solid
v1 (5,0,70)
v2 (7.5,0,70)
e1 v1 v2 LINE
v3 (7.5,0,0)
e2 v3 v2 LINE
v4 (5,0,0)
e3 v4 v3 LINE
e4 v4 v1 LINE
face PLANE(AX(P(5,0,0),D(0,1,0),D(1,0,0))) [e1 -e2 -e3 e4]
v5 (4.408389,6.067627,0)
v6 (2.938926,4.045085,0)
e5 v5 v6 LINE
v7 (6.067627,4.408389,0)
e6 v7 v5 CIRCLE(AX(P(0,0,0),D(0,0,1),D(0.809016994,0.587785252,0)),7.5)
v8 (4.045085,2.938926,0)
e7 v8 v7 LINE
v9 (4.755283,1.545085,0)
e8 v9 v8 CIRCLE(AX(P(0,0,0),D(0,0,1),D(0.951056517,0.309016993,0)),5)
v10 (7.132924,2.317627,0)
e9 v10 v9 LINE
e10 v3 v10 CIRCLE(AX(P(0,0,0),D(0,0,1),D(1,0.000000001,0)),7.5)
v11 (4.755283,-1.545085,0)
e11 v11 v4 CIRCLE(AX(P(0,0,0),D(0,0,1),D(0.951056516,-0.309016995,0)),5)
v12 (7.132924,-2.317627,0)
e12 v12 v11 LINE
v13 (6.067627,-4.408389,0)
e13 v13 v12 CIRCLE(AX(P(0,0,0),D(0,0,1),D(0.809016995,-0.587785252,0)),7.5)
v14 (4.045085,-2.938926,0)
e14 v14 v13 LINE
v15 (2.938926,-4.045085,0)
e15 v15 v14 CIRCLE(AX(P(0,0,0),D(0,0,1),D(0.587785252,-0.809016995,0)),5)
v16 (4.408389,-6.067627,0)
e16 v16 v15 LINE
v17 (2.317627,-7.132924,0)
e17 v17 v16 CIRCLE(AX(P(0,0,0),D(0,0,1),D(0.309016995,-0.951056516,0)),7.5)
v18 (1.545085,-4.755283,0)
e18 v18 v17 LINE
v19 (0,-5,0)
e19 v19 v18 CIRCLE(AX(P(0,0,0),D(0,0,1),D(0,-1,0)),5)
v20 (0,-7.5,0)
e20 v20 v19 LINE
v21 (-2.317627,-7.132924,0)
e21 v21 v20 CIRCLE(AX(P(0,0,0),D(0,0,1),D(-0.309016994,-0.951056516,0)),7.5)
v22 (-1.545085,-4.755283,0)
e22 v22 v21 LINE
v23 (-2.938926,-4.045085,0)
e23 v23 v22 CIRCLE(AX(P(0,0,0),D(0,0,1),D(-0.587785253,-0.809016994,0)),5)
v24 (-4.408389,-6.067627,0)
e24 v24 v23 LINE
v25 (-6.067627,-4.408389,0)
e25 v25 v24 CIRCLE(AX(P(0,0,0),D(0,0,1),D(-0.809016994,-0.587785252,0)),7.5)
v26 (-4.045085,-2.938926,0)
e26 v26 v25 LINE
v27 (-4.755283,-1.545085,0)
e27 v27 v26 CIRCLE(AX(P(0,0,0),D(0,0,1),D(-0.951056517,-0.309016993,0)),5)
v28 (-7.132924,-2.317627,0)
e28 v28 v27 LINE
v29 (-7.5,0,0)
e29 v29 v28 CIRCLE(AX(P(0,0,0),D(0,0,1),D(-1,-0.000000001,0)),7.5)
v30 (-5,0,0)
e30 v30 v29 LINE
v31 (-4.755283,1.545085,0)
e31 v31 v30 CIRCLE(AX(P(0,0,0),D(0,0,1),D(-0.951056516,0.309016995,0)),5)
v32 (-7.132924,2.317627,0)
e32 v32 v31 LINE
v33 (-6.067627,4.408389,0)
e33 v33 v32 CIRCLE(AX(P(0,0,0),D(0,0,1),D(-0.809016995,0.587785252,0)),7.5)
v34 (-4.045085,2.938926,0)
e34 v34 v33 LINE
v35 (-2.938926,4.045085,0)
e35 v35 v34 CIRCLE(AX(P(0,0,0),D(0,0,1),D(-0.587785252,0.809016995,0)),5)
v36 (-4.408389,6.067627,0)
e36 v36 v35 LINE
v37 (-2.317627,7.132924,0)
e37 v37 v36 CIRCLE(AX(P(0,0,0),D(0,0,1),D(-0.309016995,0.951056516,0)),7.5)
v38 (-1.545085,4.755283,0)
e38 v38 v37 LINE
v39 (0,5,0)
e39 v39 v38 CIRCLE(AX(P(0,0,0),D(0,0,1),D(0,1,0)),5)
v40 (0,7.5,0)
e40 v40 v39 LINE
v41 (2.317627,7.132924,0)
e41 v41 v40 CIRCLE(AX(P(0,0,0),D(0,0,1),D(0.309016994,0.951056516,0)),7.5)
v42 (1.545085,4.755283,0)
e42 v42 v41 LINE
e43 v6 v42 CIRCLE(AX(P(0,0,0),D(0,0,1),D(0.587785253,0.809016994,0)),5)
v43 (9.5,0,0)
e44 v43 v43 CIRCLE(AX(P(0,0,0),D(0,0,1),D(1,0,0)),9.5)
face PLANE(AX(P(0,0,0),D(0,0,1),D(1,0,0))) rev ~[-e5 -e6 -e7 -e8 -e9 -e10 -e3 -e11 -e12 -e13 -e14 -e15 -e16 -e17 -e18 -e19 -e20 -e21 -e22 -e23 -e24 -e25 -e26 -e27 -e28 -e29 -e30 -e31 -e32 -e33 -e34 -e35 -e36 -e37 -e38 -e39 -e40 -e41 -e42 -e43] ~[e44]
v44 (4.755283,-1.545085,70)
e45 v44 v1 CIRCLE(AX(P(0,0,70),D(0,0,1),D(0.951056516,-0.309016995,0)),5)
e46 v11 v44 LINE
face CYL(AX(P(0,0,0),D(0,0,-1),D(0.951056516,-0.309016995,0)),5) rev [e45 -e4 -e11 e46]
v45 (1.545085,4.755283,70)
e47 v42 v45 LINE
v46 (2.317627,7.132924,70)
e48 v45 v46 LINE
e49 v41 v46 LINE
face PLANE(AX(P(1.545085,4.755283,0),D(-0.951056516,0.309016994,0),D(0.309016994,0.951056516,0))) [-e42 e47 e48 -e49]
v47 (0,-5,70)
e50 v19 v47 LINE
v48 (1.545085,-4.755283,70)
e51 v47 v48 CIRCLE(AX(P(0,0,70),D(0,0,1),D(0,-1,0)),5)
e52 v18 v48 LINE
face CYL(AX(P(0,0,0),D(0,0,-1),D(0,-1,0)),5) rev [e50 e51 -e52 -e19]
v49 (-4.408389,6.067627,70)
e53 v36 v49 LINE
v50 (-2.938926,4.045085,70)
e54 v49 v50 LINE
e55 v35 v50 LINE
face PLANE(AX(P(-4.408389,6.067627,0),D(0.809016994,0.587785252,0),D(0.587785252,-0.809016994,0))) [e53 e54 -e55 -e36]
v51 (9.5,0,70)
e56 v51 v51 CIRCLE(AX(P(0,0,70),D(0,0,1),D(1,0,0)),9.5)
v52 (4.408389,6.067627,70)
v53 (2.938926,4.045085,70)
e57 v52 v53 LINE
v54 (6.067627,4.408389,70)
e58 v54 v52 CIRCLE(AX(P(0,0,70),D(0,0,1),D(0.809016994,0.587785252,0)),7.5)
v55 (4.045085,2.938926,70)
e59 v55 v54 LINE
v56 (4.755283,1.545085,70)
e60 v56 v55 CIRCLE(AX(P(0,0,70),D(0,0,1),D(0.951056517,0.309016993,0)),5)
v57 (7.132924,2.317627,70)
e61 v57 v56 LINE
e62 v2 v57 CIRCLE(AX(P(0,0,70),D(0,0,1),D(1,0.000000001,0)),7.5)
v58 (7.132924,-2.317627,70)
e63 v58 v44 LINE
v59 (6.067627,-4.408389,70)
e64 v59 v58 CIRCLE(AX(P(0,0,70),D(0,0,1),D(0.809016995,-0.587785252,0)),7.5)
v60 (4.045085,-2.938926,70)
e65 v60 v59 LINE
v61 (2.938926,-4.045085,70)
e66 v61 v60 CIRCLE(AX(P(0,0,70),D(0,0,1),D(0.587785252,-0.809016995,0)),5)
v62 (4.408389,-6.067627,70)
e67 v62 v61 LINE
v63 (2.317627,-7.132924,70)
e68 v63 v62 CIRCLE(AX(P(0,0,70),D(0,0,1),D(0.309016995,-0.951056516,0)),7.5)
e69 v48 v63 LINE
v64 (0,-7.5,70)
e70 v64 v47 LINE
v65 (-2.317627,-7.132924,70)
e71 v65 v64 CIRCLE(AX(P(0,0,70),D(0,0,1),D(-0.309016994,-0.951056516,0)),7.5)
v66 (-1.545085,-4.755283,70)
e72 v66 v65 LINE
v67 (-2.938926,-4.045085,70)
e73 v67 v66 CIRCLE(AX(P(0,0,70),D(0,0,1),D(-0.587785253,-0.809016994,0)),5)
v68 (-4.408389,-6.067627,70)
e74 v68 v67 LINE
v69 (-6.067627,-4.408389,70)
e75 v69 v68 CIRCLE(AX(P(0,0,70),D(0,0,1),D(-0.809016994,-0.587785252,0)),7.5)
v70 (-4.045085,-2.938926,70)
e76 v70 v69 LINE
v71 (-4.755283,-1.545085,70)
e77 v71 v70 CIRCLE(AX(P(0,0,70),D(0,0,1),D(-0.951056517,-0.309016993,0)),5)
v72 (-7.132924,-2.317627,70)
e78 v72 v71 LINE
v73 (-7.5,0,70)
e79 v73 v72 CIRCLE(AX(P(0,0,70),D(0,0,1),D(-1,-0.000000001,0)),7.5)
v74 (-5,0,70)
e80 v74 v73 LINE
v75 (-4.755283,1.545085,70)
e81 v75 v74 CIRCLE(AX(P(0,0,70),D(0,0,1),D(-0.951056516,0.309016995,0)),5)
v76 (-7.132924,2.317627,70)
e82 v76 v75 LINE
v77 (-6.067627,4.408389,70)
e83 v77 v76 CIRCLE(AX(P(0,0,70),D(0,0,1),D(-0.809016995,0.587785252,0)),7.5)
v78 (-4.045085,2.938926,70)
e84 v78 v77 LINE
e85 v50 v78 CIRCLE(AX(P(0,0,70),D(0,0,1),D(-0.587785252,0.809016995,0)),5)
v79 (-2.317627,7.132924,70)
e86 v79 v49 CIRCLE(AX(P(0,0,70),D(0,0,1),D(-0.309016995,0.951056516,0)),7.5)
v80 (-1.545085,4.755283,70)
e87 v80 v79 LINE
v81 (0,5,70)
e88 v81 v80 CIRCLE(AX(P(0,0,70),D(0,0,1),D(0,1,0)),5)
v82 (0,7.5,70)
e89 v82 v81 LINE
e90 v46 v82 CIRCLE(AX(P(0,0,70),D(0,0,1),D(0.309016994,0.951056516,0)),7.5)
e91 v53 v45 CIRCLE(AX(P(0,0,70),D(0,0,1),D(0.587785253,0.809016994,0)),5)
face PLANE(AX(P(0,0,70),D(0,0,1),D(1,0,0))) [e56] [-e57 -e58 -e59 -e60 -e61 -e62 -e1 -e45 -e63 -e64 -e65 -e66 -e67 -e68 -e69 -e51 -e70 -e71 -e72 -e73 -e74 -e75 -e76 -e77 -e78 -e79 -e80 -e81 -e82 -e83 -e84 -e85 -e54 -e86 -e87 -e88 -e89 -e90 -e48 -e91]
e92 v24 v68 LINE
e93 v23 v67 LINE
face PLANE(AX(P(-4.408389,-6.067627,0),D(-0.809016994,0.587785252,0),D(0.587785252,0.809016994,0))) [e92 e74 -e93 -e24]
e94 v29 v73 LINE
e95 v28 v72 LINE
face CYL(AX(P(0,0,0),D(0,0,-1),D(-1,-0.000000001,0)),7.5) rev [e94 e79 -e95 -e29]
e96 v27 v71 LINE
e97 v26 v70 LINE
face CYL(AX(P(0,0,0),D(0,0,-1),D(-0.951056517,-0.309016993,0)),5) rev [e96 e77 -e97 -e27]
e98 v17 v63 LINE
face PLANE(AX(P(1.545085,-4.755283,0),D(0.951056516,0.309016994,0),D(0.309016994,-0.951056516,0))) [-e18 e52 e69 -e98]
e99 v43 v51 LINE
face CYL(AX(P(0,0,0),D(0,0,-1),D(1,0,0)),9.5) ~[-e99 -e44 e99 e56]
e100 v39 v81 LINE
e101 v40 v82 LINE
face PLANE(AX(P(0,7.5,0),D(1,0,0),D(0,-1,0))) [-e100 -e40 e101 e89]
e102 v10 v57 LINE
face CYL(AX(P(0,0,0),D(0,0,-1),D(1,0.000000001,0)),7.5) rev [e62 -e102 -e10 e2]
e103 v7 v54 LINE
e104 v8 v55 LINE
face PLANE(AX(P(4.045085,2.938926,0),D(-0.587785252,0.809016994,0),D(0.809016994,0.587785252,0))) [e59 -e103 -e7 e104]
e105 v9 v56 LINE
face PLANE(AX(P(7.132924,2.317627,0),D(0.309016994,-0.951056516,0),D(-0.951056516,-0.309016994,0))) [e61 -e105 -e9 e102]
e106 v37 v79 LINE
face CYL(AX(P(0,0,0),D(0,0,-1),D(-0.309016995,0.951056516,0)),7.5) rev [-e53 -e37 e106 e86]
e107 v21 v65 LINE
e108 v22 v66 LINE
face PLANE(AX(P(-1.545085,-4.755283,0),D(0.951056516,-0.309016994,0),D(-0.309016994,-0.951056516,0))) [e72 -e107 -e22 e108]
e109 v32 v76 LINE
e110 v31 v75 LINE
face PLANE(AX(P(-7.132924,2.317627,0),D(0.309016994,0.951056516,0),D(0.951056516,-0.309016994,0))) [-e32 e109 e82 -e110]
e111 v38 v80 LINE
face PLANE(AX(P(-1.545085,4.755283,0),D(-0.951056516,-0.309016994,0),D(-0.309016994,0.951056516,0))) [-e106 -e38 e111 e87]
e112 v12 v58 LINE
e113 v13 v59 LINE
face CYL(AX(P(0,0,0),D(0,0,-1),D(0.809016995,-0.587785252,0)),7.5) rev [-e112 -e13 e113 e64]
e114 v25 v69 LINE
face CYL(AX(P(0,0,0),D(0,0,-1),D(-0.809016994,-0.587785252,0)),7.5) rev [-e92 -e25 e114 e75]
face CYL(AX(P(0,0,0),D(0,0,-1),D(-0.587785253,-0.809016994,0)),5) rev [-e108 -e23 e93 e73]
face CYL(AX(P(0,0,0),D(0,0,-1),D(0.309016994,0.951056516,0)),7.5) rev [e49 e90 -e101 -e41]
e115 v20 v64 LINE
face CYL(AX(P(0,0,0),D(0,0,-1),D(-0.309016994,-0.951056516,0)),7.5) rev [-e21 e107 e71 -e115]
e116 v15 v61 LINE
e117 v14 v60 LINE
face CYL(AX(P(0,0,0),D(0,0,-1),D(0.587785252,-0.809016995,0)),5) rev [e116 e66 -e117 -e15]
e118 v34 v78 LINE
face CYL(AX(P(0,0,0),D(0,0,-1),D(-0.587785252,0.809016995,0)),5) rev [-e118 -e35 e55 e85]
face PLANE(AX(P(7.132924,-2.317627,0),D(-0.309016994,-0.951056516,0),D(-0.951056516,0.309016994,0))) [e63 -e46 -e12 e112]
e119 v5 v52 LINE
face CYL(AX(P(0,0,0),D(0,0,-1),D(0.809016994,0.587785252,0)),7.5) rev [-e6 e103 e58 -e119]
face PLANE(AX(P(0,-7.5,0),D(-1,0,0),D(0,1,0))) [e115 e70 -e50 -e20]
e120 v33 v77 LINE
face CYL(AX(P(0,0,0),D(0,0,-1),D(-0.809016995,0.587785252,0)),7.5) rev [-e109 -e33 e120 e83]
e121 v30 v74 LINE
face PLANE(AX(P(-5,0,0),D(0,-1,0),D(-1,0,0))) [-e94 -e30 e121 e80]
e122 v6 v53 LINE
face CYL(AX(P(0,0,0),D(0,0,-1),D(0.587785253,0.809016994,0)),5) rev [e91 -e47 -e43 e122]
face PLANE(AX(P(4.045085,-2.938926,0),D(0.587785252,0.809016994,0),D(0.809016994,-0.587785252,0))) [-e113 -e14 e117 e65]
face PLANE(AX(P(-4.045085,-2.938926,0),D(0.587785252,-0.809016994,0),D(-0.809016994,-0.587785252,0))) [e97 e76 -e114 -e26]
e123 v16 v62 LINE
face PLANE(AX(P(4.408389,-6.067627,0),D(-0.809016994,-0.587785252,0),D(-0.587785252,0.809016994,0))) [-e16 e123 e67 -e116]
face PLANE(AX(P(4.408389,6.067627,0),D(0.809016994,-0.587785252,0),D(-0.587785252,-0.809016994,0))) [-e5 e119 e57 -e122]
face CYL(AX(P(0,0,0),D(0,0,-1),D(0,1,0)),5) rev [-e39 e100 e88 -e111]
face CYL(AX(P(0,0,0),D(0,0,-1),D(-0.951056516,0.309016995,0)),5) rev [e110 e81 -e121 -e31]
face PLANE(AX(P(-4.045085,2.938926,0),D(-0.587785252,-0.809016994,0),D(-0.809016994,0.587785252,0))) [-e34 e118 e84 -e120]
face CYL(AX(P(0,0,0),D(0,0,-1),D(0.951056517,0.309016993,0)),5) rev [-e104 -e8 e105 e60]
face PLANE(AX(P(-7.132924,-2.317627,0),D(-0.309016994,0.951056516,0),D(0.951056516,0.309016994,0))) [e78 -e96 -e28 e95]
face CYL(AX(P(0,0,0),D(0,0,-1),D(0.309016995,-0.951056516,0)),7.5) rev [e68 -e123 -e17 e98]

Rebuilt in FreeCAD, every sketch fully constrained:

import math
import FreeCAD as App
import Part
import Sketcher
from FreeCAD import Vector
Q = App.Units.Quantity

doc = App.newDocument("Part")
body = doc.addObject("PartDesign::Body", "Body")

# Sketch on XY plane
sketch1 = body.newObject("Sketcher::SketchObject", "Sketch")
sketch1.AttachmentSupport = (doc.getObject("XY_Plane"), [""])
sketch1.MapMode = "FlatFace"
sketch1.addGeometry([
    Part.Circle(Vector(0, 0, 0), Vector(0, 0, 1), 9.5),  # 0
    Part.LineSegment(Vector(0, 5, 0), Vector(0, 7.5, 0)),  # 1
    Part.ArcOfCircle(Part.Circle(Vector(0, 0, 0), Vector(0, 0, 1), 7.5), math.radians(72), math.radians(90)),  # 2
    Part.LineSegment(Vector(2.317627, 7.132924, 0), Vector(1.545085, 4.755283, 0)),  # 3
    Part.ArcOfCircle(Part.Circle(Vector(0, 0, 0), Vector(0, 0, 1), 5), math.radians(54), math.radians(72)),  # 4
    Part.LineSegment(Vector(2.938926, 4.045085, 0), Vector(4.408389, 6.067627, 0)),  # 5
    Part.ArcOfCircle(Part.Circle(Vector(0, 0, 0), Vector(0, 0, 1), 7.5), math.radians(36), math.radians(54)),  # 6
    Part.LineSegment(Vector(6.067627, 4.408389, 0), Vector(4.045085, 2.938926, 0)),  # 7
    Part.ArcOfCircle(Part.Circle(Vector(0, 0, 0), Vector(0, 0, 1), 5), math.radians(18), math.radians(36)),  # 8
    Part.LineSegment(Vector(4.755283, 1.545085, 0), Vector(7.132924, 2.317627, 0)),  # 9
    Part.ArcOfCircle(Part.Circle(Vector(0, 0, 0), Vector(0, 0, 1), 7.5), math.radians(0), math.radians(18)),  # 10
    Part.LineSegment(Vector(7.5, 0, 0), Vector(5, 0, 0)),  # 11
    Part.ArcOfCircle(Part.Circle(Vector(0, 0, 0), Vector(0, 0, 1), 5), math.radians(-18), math.radians(0)),  # 12
    Part.LineSegment(Vector(4.755283, -1.545085, 0), Vector(7.132924, -2.317627, 0)),  # 13
    Part.ArcOfCircle(Part.Circle(Vector(0, 0, 0), Vector(0, 0, 1), 7.5), math.radians(-36), math.radians(-18)),  # 14
    Part.LineSegment(Vector(6.067627, -4.408389, 0), Vector(4.045085, -2.938926, 0)),  # 15
    Part.ArcOfCircle(Part.Circle(Vector(0, 0, 0), Vector(0, 0, 1), 5), math.radians(-54), math.radians(-36)),  # 16
    Part.LineSegment(Vector(2.938926, -4.045085, 0), Vector(4.408389, -6.067627, 0)),  # 17
    Part.ArcOfCircle(Part.Circle(Vector(0, 0, 0), Vector(0, 0, 1), 7.5), math.radians(-72), math.radians(-54)),  # 18
    Part.LineSegment(Vector(2.317627, -7.132924, 0), Vector(1.545085, -4.755283, 0)),  # 19
    Part.ArcOfCircle(Part.Circle(Vector(0, 0, 0), Vector(0, 0, 1), 5), math.radians(-90), math.radians(-72)),  # 20
    Part.LineSegment(Vector(0, -5, 0), Vector(0, -7.5, 0)),  # 21
    Part.ArcOfCircle(Part.Circle(Vector(0, 0, 0), Vector(0, 0, 1), 7.5), math.radians(-108), math.radians(-90)),  # 22
    Part.LineSegment(Vector(-2.317627, -7.132924, 0), Vector(-1.545085, -4.755283, 0)),  # 23
    Part.ArcOfCircle(Part.Circle(Vector(0, 0, 0), Vector(0, 0, 1), 5), math.radians(-126), math.radians(-108)),  # 24
    Part.LineSegment(Vector(-2.938926, -4.045085, 0), Vector(-4.408389, -6.067627, 0)),  # 25
    Part.ArcOfCircle(Part.Circle(Vector(0, 0, 0), Vector(0, 0, 1), 7.5), math.radians(-144), math.radians(-126)),  # 26
    Part.LineSegment(Vector(-6.067627, -4.408389, 0), Vector(-4.045085, -2.938926, 0)),  # 27
    Part.ArcOfCircle(Part.Circle(Vector(0, 0, 0), Vector(0, 0, 1), 5), math.radians(-162), math.radians(-144)),  # 28
    Part.LineSegment(Vector(-4.755283, -1.545085, 0), Vector(-7.132924, -2.317627, 0)),  # 29
    Part.ArcOfCircle(Part.Circle(Vector(0, 0, 0), Vector(0, 0, 1), 7.5), math.radians(-180), math.radians(-162)),  # 30
    Part.LineSegment(Vector(-7.5, 0, 0), Vector(-5, 0, 0)),  # 31
    Part.ArcOfCircle(Part.Circle(Vector(0, 0, 0), Vector(0, 0, 1), 5), math.radians(162), math.radians(180)),  # 32
    Part.LineSegment(Vector(-4.755283, 1.545085, 0), Vector(-7.132924, 2.317627, 0)),  # 33
    Part.ArcOfCircle(Part.Circle(Vector(0, 0, 0), Vector(0, 0, 1), 7.5), math.radians(144), math.radians(162)),  # 34
    Part.LineSegment(Vector(-6.067627, 4.408389, 0), Vector(-4.045085, 2.938926, 0)),  # 35
    Part.ArcOfCircle(Part.Circle(Vector(0, 0, 0), Vector(0, 0, 1), 5), math.radians(126), math.radians(144)),  # 36
    Part.LineSegment(Vector(-2.938926, 4.045085, 0), Vector(-4.408389, 6.067627, 0)),  # 37
    Part.ArcOfCircle(Part.Circle(Vector(0, 0, 0), Vector(0, 0, 1), 7.5), math.radians(108), math.radians(126)),  # 38
    Part.LineSegment(Vector(-2.317627, 7.132924, 0), Vector(-1.545085, 4.755283, 0)),  # 39
    Part.ArcOfCircle(Part.Circle(Vector(0, 0, 0), Vector(0, 0, 1), 5), math.radians(90), math.radians(108)),  # 40
], False)
sketch1.addConstraint([
    Sketcher.Constraint("Coincident", 1, 2, 2, 2),
    Sketcher.Constraint("Coincident", 2, 1, 3, 1),
    Sketcher.Constraint("Coincident", 3, 2, 4, 2),
    Sketcher.Constraint("Coincident", 4, 1, 5, 1),
    Sketcher.Constraint("Coincident", 5, 2, 6, 2),
    Sketcher.Constraint("Coincident", 6, 1, 7, 1),
    Sketcher.Constraint("Coincident", 7, 2, 8, 2),
    Sketcher.Constraint("Coincident", 8, 1, 9, 1),
    Sketcher.Constraint("Coincident", 9, 2, 10, 2),
    Sketcher.Constraint("Coincident", 10, 1, 11, 1),
    Sketcher.Constraint("Coincident", 11, 2, 12, 2),
    Sketcher.Constraint("Coincident", 12, 1, 13, 1),
    Sketcher.Constraint("Coincident", 13, 2, 14, 2),
    Sketcher.Constraint("Coincident", 14, 1, 15, 1),
    Sketcher.Constraint("Coincident", 15, 2, 16, 2),
    Sketcher.Constraint("Coincident", 16, 1, 17, 1),
    Sketcher.Constraint("Coincident", 17, 2, 18, 2),
    Sketcher.Constraint("Coincident", 18, 1, 19, 1),
    Sketcher.Constraint("Coincident", 19, 2, 20, 2),
    Sketcher.Constraint("Coincident", 20, 1, 21, 1),
    Sketcher.Constraint("Coincident", 21, 2, 22, 2),
    Sketcher.Constraint("Coincident", 22, 1, 23, 1),
    Sketcher.Constraint("Coincident", 23, 2, 24, 2),
    Sketcher.Constraint("Coincident", 24, 1, 25, 1),
    Sketcher.Constraint("Coincident", 25, 2, 26, 2),
    Sketcher.Constraint("Coincident", 26, 1, 27, 1),
    Sketcher.Constraint("Coincident", 27, 2, 28, 2),
    Sketcher.Constraint("Coincident", 28, 1, 29, 1),
    Sketcher.Constraint("Coincident", 29, 2, 30, 2),
    Sketcher.Constraint("Coincident", 30, 1, 31, 1),
    Sketcher.Constraint("Coincident", 31, 2, 32, 2),
    Sketcher.Constraint("Coincident", 32, 1, 33, 1),
    Sketcher.Constraint("Coincident", 33, 2, 34, 2),
    Sketcher.Constraint("Coincident", 34, 1, 35, 1),
    Sketcher.Constraint("Coincident", 35, 2, 36, 2),
    Sketcher.Constraint("Coincident", 36, 1, 37, 1),
    Sketcher.Constraint("Coincident", 37, 2, 38, 2),
    Sketcher.Constraint("Coincident", 38, 1, 39, 1),
    Sketcher.Constraint("Coincident", 39, 2, 40, 2),
    Sketcher.Constraint("Coincident", 40, 1, 1, 1),
    Sketcher.Constraint("Vertical", 1),
    Sketcher.Constraint("Horizontal", 11),
    Sketcher.Constraint("Vertical", 21),
    Sketcher.Constraint("Horizontal", 31),
    Sketcher.Constraint("Coincident", 0, 3, -1, 1),
    Sketcher.Constraint("Coincident", 2, 3, -1, 1),
    Sketcher.Constraint("Coincident", 4, 3, -1, 1),
    Sketcher.Constraint("Coincident", 6, 3, -1, 1),
    Sketcher.Constraint("Coincident", 8, 3, -1, 1),
    Sketcher.Constraint("Coincident", 10, 3, -1, 1),
    Sketcher.Constraint("Coincident", 12, 3, -1, 1),
    Sketcher.Constraint("Coincident", 14, 3, -1, 1),
    Sketcher.Constraint("Coincident", 16, 3, -1, 1),
    Sketcher.Constraint("Coincident", 18, 3, -1, 1),
    Sketcher.Constraint("Coincident", 20, 3, -1, 1),
    Sketcher.Constraint("Coincident", 22, 3, -1, 1),
    Sketcher.Constraint("Coincident", 24, 3, -1, 1),
    Sketcher.Constraint("Coincident", 26, 3, -1, 1),
    Sketcher.Constraint("Coincident", 28, 3, -1, 1),
    Sketcher.Constraint("Coincident", 30, 3, -1, 1),
    Sketcher.Constraint("Coincident", 32, 3, -1, 1),
    Sketcher.Constraint("Coincident", 34, 3, -1, 1),
    Sketcher.Constraint("Coincident", 36, 3, -1, 1),
    Sketcher.Constraint("Coincident", 38, 3, -1, 1),
    Sketcher.Constraint("Coincident", 40, 3, -1, 1),
    Sketcher.Constraint("Equal", 2, 6),
    Sketcher.Constraint("Equal", 4, 8),
    Sketcher.Constraint("Equal", 6, 10),
    Sketcher.Constraint("Equal", 8, 12),
    Sketcher.Constraint("Equal", 10, 14),
    Sketcher.Constraint("Equal", 12, 16),
    Sketcher.Constraint("Equal", 14, 18),
    Sketcher.Constraint("Equal", 16, 20),
    Sketcher.Constraint("Equal", 18, 22),
    Sketcher.Constraint("Equal", 20, 24),
    Sketcher.Constraint("Equal", 22, 26),
    Sketcher.Constraint("Equal", 24, 28),
    Sketcher.Constraint("Equal", 26, 30),
    Sketcher.Constraint("Equal", 28, 32),
    Sketcher.Constraint("Equal", 30, 34),
    Sketcher.Constraint("Equal", 32, 36),
    Sketcher.Constraint("Equal", 34, 38),
    Sketcher.Constraint("Equal", 36, 40),
    Sketcher.Constraint("PointOnObject", 1, 2, -2),
    Sketcher.Constraint("PointOnObject", 10, 1, -1),
    Sketcher.Constraint("PointOnObject", 20, 1, -2),
    Sketcher.Constraint("PointOnObject", 30, 1, -1),
    Sketcher.Constraint("Perpendicular", 3, 13),
    Sketcher.Constraint("Perpendicular", 5, 15),
    Sketcher.Constraint("Perpendicular", 7, 17),
    Sketcher.Constraint("Perpendicular", 9, 19),
    Sketcher.Constraint("Perpendicular", 13, 23),
    Sketcher.Constraint("Perpendicular", 15, 25),
    Sketcher.Constraint("Perpendicular", 17, 27),
    Sketcher.Constraint("Perpendicular", 19, 29),
    Sketcher.Constraint("Perpendicular", 23, 33),
    Sketcher.Constraint("Perpendicular", 25, 35),
    Sketcher.Constraint("Perpendicular", 27, 37),
    Sketcher.Constraint("Perpendicular", 29, 39),
    Sketcher.Constraint("Horizontal", 18, 1, 22, 1),
    Sketcher.Constraint("Horizontal", 19, 2, 23, 2),
    Sketcher.Constraint("Horizontal", 16, 1, 24, 1),
    Sketcher.Constraint("Horizontal", 17, 2, 25, 2),
    Sketcher.Constraint("Horizontal", 14, 1, 26, 1),
    Sketcher.Constraint("Horizontal", 12, 1, 28, 1),
    Sketcher.Constraint("Horizontal", 8, 1, 32, 1),
    Sketcher.Constraint("Horizontal", 6, 1, 34, 1),
    Sketcher.Constraint("Horizontal", 4, 1, 36, 1),
    Sketcher.Constraint("Horizontal", 2, 1, 38, 1),
    Sketcher.Constraint("Vertical", 8, 1, 12, 1),
    Sketcher.Constraint("Vertical", 6, 1, 14, 1),
    Sketcher.Constraint("Vertical", 4, 1, 16, 1),
    Sketcher.Constraint("Vertical", 2, 1, 18, 1),
    Sketcher.Constraint("Diameter", 0, 19.0),
    Sketcher.Constraint("Radius", 4, 5.0),
    Sketcher.Constraint("Radius", 2, 7.5),
    Sketcher.Constraint("Angle", 3, Q("-108 deg")),
    Sketcher.Constraint("Angle", 5, Q("54 deg")),
    Sketcher.Constraint("DistanceX", -1, 1, 5, 2, 4.408389),
    Sketcher.Constraint("DistanceY", -1, 1, 6, 1, 4.408389),
    Sketcher.Constraint("DistanceX", -1, 1, 2, 1, 2.317627),
    Sketcher.Constraint("DistanceX", -1, 1, 8, 1, 4.755283),
])
pad1 = body.newObject("PartDesign::Pad", "Pad")
pad1.Profile = sketch1
pad1.Length = 70

doc.recompute()
